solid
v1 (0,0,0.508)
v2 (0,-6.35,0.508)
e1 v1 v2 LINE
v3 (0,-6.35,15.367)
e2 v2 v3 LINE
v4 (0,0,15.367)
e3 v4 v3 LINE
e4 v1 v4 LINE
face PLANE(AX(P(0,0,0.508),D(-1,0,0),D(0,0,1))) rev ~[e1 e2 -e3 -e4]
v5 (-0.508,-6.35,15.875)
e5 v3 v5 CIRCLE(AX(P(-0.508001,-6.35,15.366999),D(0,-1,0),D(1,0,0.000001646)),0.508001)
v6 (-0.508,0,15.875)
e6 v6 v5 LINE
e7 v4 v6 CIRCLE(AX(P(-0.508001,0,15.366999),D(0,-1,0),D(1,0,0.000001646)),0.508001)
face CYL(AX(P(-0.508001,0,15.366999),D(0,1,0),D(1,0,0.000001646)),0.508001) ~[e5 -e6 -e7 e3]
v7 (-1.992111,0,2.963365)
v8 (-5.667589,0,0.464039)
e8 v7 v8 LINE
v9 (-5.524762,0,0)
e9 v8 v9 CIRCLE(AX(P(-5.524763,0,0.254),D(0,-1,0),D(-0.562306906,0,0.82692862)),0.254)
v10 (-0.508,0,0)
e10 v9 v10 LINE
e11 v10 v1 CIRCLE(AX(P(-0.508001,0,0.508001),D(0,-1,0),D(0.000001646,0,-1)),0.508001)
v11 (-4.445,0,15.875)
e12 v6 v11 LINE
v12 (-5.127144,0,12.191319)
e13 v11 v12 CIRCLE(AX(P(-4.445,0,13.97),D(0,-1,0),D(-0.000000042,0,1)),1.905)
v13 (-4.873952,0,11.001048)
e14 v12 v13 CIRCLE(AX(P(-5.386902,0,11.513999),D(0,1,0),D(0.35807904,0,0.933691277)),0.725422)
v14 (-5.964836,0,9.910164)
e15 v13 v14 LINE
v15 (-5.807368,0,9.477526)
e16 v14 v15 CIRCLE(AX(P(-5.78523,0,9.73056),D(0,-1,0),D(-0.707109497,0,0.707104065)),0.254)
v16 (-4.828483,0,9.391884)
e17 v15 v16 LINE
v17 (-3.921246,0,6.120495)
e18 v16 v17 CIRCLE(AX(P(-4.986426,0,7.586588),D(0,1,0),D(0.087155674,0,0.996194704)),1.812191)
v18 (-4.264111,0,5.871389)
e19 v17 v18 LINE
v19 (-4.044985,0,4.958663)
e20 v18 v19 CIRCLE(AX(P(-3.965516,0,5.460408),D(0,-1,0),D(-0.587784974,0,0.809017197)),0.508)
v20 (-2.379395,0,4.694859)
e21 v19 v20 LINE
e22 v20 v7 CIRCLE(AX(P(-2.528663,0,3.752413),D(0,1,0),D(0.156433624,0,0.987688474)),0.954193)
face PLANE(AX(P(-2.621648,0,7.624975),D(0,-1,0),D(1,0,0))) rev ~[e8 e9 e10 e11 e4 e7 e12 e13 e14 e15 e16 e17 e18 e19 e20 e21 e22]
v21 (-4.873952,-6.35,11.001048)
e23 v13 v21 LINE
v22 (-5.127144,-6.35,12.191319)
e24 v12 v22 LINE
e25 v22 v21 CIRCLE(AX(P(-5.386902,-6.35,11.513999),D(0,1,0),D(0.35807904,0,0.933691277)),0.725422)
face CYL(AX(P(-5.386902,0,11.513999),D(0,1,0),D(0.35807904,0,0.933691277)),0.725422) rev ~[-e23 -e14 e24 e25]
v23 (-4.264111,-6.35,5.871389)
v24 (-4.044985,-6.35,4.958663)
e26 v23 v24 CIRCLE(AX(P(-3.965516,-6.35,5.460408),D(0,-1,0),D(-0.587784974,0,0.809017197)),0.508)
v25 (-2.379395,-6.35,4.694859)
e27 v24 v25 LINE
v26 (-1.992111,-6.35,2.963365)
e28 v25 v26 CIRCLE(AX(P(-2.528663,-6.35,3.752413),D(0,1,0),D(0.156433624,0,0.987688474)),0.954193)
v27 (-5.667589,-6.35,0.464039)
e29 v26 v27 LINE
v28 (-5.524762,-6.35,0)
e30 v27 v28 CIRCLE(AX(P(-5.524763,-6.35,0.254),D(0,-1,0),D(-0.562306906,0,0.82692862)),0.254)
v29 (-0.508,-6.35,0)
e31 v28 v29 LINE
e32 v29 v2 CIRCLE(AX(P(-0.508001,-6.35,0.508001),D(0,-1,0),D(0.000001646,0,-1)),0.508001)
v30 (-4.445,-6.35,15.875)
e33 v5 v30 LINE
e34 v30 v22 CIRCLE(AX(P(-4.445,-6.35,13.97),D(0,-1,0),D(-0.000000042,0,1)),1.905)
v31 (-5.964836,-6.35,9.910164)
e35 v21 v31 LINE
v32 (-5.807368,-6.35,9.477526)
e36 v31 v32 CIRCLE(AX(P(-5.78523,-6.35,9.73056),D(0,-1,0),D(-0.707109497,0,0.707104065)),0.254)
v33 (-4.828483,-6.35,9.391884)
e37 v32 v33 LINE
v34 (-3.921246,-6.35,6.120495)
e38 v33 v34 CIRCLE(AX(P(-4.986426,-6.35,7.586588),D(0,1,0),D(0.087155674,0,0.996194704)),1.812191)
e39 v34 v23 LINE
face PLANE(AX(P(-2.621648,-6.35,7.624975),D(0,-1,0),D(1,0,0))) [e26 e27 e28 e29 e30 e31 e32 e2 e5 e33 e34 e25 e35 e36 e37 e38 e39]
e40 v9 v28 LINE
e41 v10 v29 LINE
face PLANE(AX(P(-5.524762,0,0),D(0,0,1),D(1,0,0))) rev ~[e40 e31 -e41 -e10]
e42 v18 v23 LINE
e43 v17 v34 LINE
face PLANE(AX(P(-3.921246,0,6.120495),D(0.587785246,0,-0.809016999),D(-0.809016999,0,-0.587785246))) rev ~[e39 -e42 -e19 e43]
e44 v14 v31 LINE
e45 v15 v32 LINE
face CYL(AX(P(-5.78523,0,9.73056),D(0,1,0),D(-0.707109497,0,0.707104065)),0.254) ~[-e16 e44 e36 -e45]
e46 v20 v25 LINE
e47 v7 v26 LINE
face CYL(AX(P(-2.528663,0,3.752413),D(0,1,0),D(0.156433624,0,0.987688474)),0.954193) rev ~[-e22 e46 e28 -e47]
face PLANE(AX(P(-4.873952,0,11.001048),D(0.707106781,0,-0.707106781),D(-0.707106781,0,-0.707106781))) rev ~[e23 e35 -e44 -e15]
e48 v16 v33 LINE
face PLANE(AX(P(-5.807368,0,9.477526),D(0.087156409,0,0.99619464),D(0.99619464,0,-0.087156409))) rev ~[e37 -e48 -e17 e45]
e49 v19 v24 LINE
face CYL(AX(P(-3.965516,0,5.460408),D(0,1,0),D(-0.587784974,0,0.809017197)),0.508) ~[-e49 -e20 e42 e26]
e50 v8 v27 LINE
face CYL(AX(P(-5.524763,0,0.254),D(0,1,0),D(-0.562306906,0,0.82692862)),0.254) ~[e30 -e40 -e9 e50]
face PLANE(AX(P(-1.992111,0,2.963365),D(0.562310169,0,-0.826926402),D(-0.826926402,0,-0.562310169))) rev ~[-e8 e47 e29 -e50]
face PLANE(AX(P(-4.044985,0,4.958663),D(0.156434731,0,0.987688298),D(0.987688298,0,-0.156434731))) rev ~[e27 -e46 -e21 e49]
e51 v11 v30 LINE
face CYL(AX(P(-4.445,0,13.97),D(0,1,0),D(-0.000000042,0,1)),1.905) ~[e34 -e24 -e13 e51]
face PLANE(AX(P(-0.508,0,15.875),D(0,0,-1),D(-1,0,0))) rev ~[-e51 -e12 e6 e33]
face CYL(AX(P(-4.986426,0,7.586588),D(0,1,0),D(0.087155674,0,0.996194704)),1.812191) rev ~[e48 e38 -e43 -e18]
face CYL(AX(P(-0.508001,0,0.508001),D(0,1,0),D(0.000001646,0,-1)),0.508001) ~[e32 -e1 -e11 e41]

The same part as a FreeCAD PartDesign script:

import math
import FreeCAD as App
import Part
import Sketcher
Q = App.Units.Quantity

doc = App.newDocument("Part")
params = doc.addObject("Spreadsheet::Sheet", "Params")
for row, (alias, value) in enumerate([
    ("sketch1_radius", "0.02 in"),
    ("sketch1_radius2", "0.02 in"),
    ("sketch1_radius3", "0.01 in"),
    ("sketch1_radius4", "0.02 in"),
    ("sketch1_radius5", "0.01 in"),
    ("pad1_length", "0.25 in"),
], start=1):
    params.set(f"A{row}", alias)
    params.set(f"B{row}", "=" + value)
    params.setAlias(f"B{row}", alias)

body = doc.addObject("PartDesign::Body", "Body")

# Sketch on XZ plane
sketch1 = doc.addObject("Sketcher::SketchObject", "Sketch")
body.addObject(sketch1)
sketch1.AttachmentSupport = (doc.XZ_Plane, [""])
sketch1.MapMode = "FlatFace"
sketch1.addGeometry([
    Part.LineSegment(App.Vector(-5.524762, 0, 0), App.Vector(-0.508, 0, 0)),  # 0
    Part.ArcOfCircle(Part.Circle(App.Vector(-0.508001, 0.508001, 0), App.Vector(0, 0, 1), 0.508001), math.radians(-89.999906), math.radians(-0.000094)),  # 1
    Part.LineSegment(App.Vector(0, 0.508, 0), App.Vector(0, 15.367, 0)),  # 2
    Part.ArcOfCircle(Part.Circle(App.Vector(-0.508001, 15.366999, 0), App.Vector(0, 0, 1), 0.508001), math.radians(0.000094), math.radians(89.999906)),  # 3
    Part.LineSegment(App.Vector(-0.508, 15.875, 0), App.Vector(-4.445, 15.875, 0)),  # 4
    Part.ArcOfCircle(Part.Circle(App.Vector(-4.445, 13.97, 0), App.Vector(0, 0, 1), 1.905), math.radians(90.000002), math.radians(249.01762)),  # 5
    Part.ArcOfCircle(Part.Circle(App.Vector(-5.386902, 11.513999, 0), App.Vector(0, 0, 1), 0.725422), math.radians(-45.000037), math.radians(69.01773)),  # 6
    Part.LineSegment(App.Vector(-4.873952, 11.001048, 0), App.Vector(-5.964836, 9.910164, 0)),  # 7
    Part.ArcOfCircle(Part.Circle(App.Vector(-5.78523, 9.73056, 0), App.Vector(0, 0, 1), 0.254), math.radians(135.00022), math.radians(264.999931)),  # 8
    Part.LineSegment(App.Vector(-5.807368, 9.477526, 0), App.Vector(-4.828483, 9.391884, 0)),  # 9
    Part.ArcOfCircle(Part.Circle(App.Vector(-4.986426, 7.586588, 0), App.Vector(0, 0, 1), 1.812191), math.radians(-53.999986), math.radians(85.000004)),  # 10
    Part.LineSegment(App.Vector(-3.921246, 6.120495, 0), App.Vector(-4.264111, 5.871389, 0)),  # 11
    Part.ArcOfCircle(Part.Circle(App.Vector(-3.965516, 5.460408, 0), App.Vector(0, 0, 1), 0.508), math.radians(125.99998), math.radians(261.000005)),  # 12
    Part.LineSegment(App.Vector(-4.044985, 4.958663, 0), App.Vector(-2.379395, 4.694859, 0)),  # 13
    Part.ArcOfCircle(Part.Circle(App.Vector(-2.528663, 3.752413, 0), App.Vector(0, 0, 1), 0.954193), math.radians(-55.78434), math.radians(81.000049)),  # 14
    Part.LineSegment(App.Vector(-1.992111, 2.963365, 0), App.Vector(-5.667589, 0.464039, 0)),  # 15
    Part.ArcOfCircle(Part.Circle(App.Vector(-5.524763, 0.254, 0), App.Vector(0, 0, 1), 0.254), math.radians(124.215486), math.radians(270.000296)),  # 16
], False)
sketch1.addConstraint([
    Sketcher.Constraint("Coincident", 0, 2, 1, 1),
    Sketcher.Constraint("Coincident", 1, 2, 2, 1),
    Sketcher.Constraint("Coincident", 2, 2, 3, 1),
    Sketcher.Constraint("Coincident", 3, 2, 4, 1),
    Sketcher.Constraint("Coincident", 4, 2, 5, 1),
    Sketcher.Constraint("Coincident", 5, 2, 6, 2),
    Sketcher.Constraint("Coincident", 6, 1, 7, 1),
    Sketcher.Constraint("Coincident", 7, 2, 8, 1),
    Sketcher.Constraint("Coincident", 8, 2, 9, 1),
    Sketcher.Constraint("Coincident", 9, 2, 10, 2),
    Sketcher.Constraint("Coincident", 10, 1, 11, 1),
    Sketcher.Constraint("Coincident", 11, 2, 12, 1),
    Sketcher.Constraint("Coincident", 12, 2, 13, 1),
    Sketcher.Constraint("Coincident", 13, 2, 14, 2),
    Sketcher.Constraint("Coincident", 14, 1, 15, 1),
    Sketcher.Constraint("Coincident", 15, 2, 16, 1),
    Sketcher.Constraint("Coincident", 16, 2, 0, 1),
    Sketcher.Constraint("Horizontal", 0),
    Sketcher.Constraint("Vertical", 2),
    Sketcher.Constraint("Horizontal", 4),
    Sketcher.Constraint("PointOnObject", 0, 2, -1),
    Sketcher.Constraint("PointOnObject", 1, 2, -2),
    Sketcher.Constraint("Radius", 1, Q("0.02 in")),
    Sketcher.Constraint("Radius", 3, Q("0.02 in")),
    Sketcher.Constraint("Radius", 8, Q("0.01 in")),
    Sketcher.Constraint("Radius", 12, Q("0.02 in")),
    Sketcher.Constraint("Radius", 16, Q("0.01 in")),
    Sketcher.Constraint("Radius", 5, Q("0.075 in")),
    Sketcher.Constraint("DistanceX", 4, 2, 4, 1, Q("0.155 in")),
    Sketcher.Constraint("DistanceY", 2, 1, 2, 2, Q("0.585 in")),
    Sketcher.Constraint("DistanceY", -1, 1, 5, 3, Q("0.55 in")),
    Sketcher.Constraint("DistanceX", 0, 2, -1, 1, Q("0.02 in")),
    Sketcher.Constraint("DistanceY", -1, 1, 1, 2, Q("0.02 in")),
    Sketcher.Constraint("DistanceX", 3, 2, -1, 1, Q("0.02 in")),
    Sketcher.Constraint("DistanceX", 5, 3, -1, 1, Q("0.175 in")),
    Sketcher.Constraint("Radius", 6, Q("0.725422 mm")),
    Sketcher.Constraint("Radius", 10, Q("1.812191 mm")),
    Sketcher.Constraint("Radius", 14, Q("0.954193 mm")),
    Sketcher.Constraint("DistanceY", -1, 1, 6, 3, Q("11.513999 mm")),
    Sketcher.Constraint("DistanceX", 16, 3, 14, 3, Q("2.9961 mm")),
    Sketcher.Constraint("DistanceY", 11, 2, 10, 3, Q("1.715199 mm")),
    Sketcher.Constraint("DistanceY", 14, 1, 12, 2, Q("1.995298 mm")),
    Sketcher.Constraint("DistanceX", 16, 2, 14, 3, Q("2.996099 mm")),
    Sketcher.Constraint("Distance", 13, Q("1.686352 mm")),
    Sketcher.Constraint("DistanceX", 0, 1, 0, 2, Q("5.016762 mm")),
    Sketcher.Constraint("DistanceX", 8, 3, -1, 1, Q("5.78523 mm")),
    Sketcher.Constraint("DistanceY", -1, 1, 8, 3, Q("9.73056 mm")),
    Sketcher.Constraint("DistanceY", -1, 1, 10, 3, Q("7.586588 mm")),
    Sketcher.Constraint("DistanceY", -1, 1, 12, 3, Q("5.460408 mm")),
    Sketcher.Constraint("DistanceY", -1, 1, 5, 2, Q("12.191319 mm")),
    Sketcher.Constraint("DistanceX", 6, 1, -1, 1, Q("4.873952 mm")),
    Sketcher.Constraint("DistanceX", 8, 2, -1, 1, Q("5.807368 mm")),
    Sketcher.Constraint("DistanceX", 11, 2, -1, 1, Q("4.264111 mm")),
    Sketcher.Constraint("DistanceY", -1, 1, 13, 2, Q("4.694859 mm")),
    Sketcher.Constraint("DistanceX", 14, 1, -1, 1, Q("1.992111 mm")),
    Sketcher.Constraint("DistanceX", 15, 2, -1, 1, Q("5.667589 mm")),
    Sketcher.Constraint("DistanceX", 10, 3, 12, 3, Q("1.020909 mm")),
    Sketcher.Constraint("DistanceX", 7, 2, 10, 3, Q("0.97841 mm")),
    Sketcher.Constraint("DistanceY", 9, 2, 8, 2, Q("0.085642 mm")),
    Sketcher.Constraint("DistanceX", 12, 3, 10, 1, Q("0.04427 mm")),
])
sketch1.setExpression("Constraints[22]", "Params.sketch1_radius")
sketch1.setExpression("Constraints[23]", "Params.sketch1_radius2")
sketch1.setExpression("Constraints[24]", "Params.sketch1_radius3")
sketch1.setExpression("Constraints[25]", "Params.sketch1_radius4")
sketch1.setExpression("Constraints[26]", "Params.sketch1_radius5")
pad1 = doc.addObject("PartDesign::Pad", "Pad")
body.addObject(pad1)
pad1.Profile = sketch1
pad1.setExpression("Length", "Params.pad1_length")

doc.recompute()
